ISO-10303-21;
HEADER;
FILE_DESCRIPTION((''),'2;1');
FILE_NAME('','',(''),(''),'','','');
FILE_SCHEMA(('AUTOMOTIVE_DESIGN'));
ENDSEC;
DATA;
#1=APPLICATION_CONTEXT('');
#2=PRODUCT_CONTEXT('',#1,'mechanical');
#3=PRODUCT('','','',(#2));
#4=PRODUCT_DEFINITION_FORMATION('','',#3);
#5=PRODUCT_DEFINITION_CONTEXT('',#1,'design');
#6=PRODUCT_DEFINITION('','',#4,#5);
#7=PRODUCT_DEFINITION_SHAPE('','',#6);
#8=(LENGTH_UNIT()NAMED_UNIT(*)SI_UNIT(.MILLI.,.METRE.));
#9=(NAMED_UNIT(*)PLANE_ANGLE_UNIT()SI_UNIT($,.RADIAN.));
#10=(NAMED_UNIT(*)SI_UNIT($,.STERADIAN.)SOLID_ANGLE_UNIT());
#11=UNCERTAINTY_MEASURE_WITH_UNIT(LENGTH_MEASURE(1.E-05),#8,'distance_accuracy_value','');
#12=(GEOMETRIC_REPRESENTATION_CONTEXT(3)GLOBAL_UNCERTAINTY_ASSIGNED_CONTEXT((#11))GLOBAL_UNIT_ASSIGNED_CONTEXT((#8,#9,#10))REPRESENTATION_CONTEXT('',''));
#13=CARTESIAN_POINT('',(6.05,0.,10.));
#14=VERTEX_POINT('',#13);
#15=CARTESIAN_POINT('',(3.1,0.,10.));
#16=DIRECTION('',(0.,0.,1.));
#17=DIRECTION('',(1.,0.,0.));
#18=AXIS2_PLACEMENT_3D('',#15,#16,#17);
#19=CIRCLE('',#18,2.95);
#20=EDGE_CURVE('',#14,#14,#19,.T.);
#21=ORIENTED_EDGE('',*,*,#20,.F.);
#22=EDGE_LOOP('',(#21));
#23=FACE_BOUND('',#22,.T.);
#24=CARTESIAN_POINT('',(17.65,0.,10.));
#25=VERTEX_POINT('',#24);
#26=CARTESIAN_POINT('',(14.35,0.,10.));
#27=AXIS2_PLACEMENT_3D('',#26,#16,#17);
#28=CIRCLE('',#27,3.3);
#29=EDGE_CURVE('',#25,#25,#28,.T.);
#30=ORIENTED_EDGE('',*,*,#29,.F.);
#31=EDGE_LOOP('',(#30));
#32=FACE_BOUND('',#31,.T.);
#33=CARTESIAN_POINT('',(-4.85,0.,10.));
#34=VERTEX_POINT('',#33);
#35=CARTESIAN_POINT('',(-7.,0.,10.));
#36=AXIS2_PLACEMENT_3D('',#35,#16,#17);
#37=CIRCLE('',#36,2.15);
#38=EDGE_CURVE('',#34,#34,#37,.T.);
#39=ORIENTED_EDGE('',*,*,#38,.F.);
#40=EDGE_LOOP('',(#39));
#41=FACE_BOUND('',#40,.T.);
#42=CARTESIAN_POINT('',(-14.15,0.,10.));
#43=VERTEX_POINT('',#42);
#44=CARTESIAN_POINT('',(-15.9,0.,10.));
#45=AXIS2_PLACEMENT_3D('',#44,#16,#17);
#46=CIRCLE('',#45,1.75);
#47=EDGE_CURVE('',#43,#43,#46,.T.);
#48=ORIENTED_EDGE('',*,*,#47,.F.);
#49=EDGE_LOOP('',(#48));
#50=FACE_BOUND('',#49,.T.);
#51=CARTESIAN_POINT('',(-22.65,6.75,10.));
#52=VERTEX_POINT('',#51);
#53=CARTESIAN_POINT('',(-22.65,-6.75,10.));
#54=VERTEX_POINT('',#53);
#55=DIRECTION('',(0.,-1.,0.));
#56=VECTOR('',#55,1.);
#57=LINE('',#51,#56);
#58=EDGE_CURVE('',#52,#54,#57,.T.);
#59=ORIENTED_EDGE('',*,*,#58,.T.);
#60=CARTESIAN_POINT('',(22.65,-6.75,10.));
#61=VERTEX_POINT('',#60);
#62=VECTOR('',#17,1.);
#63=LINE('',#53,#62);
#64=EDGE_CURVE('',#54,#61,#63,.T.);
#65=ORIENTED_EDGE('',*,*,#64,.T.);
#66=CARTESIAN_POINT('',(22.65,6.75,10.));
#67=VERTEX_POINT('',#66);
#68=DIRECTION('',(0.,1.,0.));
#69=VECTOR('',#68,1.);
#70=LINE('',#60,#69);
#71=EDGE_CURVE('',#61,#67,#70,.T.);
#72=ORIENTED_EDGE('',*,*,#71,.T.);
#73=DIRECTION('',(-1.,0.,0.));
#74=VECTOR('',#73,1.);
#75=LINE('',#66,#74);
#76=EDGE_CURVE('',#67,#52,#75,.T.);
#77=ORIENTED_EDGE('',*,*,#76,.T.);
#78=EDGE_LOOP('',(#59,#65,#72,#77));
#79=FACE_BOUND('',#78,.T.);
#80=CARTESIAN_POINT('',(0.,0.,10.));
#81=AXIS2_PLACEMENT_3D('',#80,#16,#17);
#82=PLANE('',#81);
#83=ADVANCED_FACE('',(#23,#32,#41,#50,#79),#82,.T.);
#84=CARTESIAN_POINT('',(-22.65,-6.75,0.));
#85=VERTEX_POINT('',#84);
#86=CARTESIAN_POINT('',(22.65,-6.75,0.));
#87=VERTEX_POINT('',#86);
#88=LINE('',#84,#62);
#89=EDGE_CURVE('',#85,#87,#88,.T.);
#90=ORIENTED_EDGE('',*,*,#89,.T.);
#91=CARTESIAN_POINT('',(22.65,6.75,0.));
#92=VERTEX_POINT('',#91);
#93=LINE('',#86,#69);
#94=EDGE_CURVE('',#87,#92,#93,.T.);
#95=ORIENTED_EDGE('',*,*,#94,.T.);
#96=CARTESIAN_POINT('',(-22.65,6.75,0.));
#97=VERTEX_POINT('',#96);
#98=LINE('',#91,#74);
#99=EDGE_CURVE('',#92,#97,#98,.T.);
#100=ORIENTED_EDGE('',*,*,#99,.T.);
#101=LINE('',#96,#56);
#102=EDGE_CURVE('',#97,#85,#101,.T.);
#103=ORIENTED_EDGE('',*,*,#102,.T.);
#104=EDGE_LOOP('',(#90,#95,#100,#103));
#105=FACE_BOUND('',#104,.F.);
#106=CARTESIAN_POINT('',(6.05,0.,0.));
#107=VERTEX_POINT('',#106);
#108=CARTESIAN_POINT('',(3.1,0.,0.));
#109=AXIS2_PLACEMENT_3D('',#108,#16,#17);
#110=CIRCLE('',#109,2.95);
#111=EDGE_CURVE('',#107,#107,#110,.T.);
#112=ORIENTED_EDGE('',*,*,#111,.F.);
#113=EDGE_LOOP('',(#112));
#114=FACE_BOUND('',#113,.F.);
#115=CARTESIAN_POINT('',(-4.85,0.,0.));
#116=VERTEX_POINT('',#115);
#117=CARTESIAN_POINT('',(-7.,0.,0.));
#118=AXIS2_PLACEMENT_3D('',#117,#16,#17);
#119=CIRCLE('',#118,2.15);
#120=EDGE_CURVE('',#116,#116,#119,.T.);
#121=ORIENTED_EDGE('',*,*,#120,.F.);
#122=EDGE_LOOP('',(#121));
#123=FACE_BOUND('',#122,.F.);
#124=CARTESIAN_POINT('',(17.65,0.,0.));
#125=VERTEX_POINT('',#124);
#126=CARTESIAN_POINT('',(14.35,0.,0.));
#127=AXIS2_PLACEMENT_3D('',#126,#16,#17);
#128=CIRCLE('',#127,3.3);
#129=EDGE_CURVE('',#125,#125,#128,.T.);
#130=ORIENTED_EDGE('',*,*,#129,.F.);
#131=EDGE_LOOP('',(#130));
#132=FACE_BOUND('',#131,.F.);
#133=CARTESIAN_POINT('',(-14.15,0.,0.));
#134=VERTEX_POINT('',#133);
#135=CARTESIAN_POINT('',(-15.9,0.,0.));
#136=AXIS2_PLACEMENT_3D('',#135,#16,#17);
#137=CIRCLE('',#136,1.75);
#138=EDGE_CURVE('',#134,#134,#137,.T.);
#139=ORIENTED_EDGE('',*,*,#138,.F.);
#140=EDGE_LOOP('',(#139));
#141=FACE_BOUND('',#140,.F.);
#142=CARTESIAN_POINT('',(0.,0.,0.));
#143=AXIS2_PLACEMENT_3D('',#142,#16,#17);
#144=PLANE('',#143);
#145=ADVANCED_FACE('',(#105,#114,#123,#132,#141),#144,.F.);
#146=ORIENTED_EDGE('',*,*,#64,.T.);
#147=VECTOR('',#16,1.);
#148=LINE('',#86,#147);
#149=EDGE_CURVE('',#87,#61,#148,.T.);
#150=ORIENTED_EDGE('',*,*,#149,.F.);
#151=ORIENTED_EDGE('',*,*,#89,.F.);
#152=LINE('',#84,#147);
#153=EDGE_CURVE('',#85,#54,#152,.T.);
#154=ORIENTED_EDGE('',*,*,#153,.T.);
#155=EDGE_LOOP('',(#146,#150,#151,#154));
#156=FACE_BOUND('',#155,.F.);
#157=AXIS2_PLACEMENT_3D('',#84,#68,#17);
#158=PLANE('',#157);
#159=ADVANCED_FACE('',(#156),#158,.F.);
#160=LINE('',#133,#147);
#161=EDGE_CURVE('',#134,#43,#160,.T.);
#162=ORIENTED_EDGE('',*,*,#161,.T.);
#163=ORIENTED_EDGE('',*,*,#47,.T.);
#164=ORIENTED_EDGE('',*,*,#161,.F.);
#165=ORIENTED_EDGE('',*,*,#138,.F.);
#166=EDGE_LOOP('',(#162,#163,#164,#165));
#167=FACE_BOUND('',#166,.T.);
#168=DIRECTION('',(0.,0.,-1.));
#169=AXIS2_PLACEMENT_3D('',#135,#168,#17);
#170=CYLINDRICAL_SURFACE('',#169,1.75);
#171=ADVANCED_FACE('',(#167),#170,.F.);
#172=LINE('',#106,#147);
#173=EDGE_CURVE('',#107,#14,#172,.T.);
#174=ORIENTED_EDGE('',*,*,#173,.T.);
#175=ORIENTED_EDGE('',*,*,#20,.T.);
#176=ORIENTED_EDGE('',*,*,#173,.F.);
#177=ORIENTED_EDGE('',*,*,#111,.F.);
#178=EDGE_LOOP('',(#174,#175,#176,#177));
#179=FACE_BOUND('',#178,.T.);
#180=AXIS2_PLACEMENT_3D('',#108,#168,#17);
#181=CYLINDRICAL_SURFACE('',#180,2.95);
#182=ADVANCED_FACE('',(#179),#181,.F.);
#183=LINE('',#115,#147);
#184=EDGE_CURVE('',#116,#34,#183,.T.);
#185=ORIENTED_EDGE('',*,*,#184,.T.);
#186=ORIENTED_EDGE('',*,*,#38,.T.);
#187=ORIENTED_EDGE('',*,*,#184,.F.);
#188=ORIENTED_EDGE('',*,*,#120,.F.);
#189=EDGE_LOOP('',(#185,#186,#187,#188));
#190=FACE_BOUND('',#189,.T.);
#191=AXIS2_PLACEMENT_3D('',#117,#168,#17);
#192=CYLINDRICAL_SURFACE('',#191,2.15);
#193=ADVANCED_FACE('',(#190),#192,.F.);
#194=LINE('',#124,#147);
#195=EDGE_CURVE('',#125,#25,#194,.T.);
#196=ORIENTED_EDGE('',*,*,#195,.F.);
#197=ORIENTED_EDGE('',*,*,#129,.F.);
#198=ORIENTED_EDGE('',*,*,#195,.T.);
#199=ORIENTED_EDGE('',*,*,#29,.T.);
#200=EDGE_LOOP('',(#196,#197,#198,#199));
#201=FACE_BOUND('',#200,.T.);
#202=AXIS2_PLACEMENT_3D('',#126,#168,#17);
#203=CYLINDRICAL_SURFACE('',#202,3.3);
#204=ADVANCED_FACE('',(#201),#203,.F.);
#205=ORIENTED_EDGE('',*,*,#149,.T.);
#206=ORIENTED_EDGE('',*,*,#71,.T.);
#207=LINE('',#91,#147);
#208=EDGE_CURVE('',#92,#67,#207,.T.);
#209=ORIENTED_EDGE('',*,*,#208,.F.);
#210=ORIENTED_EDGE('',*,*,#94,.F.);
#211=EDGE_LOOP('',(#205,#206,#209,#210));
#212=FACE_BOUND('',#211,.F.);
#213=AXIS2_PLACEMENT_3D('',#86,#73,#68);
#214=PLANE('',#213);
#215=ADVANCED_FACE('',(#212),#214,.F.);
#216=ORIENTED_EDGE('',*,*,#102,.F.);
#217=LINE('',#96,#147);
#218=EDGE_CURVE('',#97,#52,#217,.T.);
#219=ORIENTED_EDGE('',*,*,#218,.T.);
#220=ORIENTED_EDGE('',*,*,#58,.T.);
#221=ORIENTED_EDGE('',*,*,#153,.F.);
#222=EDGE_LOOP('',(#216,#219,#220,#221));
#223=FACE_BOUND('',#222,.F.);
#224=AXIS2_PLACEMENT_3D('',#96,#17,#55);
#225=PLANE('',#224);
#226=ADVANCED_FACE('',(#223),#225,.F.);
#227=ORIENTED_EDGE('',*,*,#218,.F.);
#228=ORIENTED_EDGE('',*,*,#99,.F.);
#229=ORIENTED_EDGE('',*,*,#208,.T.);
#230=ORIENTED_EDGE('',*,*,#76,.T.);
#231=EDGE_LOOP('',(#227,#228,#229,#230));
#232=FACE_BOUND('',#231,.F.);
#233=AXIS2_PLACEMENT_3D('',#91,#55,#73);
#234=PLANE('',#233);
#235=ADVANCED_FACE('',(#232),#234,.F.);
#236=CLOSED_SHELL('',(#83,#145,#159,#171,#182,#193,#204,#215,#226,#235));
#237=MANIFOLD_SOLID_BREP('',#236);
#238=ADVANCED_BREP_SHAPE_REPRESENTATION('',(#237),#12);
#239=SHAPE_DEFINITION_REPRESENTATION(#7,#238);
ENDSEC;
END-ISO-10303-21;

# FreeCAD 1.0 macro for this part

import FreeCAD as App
import Part
import Sketcher

V = App.Vector
Q = App.Units.Quantity

doc = App.newDocument("Part")
body = doc.addObject("PartDesign::Body", "Body")

# Sketch on XY plane
sketch1 = body.newObject("Sketcher::SketchObject", "Sketch")
sketch1.AttachmentSupport = (doc.getObject("XY_Plane"), [""])
sketch1.MapMode = "FlatFace"
sketch1.addGeometry([
    Part.LineSegment(V(-22.6, 6.8, 0), V(-22.6, -6.8, 0)),  # 0
    Part.LineSegment(V(-22.6, -6.8, 0), V(22.6, -6.8, 0)),  # 1
    Part.LineSegment(V(22.6, -6.8, 0), V(22.6, 6.8, 0)),  # 2
    Part.LineSegment(V(22.6, 6.8, 0), V(-22.6, 6.8, 0)),  # 3
    Part.Circle(V(-15.9, 0, 0), V(0, 0, 1), 1.8),  # 4
    Part.Circle(V(-7, 0, 0), V(0, 0, 1), 2.1),  # 5
    Part.Circle(V(3.1, 0, 0), V(0, 0, 1), 3),  # 6
    Part.Circle(V(14.3, 0, 0), V(0, 0, 1), 3.3),  # 7
], False)
sketch1.addConstraint([
    Sketcher.Constraint("Coincident", 0, 2, 1, 1),
    Sketcher.Constraint("Coincident", 1, 2, 2, 1),
    Sketcher.Constraint("Coincident", 2, 2, 3, 1),
    Sketcher.Constraint("Coincident", 3, 2, 0, 1),
    Sketcher.Constraint("Vertical", 0),
    Sketcher.Constraint("Horizontal", 1),
    Sketcher.Constraint("Vertical", 2),
    Sketcher.Constraint("Horizontal", 3),
    Sketcher.Constraint("Symmetric", 0, 2, 2, 2, -1, 1),
    Sketcher.Constraint("PointOnObject", 4, 3, -1),
    Sketcher.Constraint("PointOnObject", 5, 3, -1),
    Sketcher.Constraint("PointOnObject", 6, 3, -1),
    Sketcher.Constraint("PointOnObject", 7, 3, -1),
    Sketcher.Constraint("Diameter", 4, Q("3.5 mm")),
    Sketcher.Constraint("Diameter", 5, Q("4.3 mm")),
    Sketcher.Constraint("Diameter", 6, Q("5.9 mm")),
    Sketcher.Constraint("Diameter", 7, Q("6.6 mm")),
    Sketcher.Constraint("DistanceX", 1, 1, 1, 2, Q("45.3 mm")),
    Sketcher.Constraint("DistanceY", 0, 2, 0, 1, Q("13.5 mm")),
    Sketcher.Constraint("DistanceX", 5, 3, -1, 1, Q("7 mm")),
    Sketcher.Constraint("DistanceX", 4, 3, 6, 3, Q("19 mm")),
    Sketcher.Constraint("DistanceX", 0, 2, 7, 3, Q("37 mm")),
    Sketcher.Constraint("DistanceX", 4, 3, -1, 1, Q("15.9 mm")),
])
pad1 = body.newObject("PartDesign::Pad", "Pad")
pad1.Profile = sketch1
pad1.Length = 10

doc.recompute()
